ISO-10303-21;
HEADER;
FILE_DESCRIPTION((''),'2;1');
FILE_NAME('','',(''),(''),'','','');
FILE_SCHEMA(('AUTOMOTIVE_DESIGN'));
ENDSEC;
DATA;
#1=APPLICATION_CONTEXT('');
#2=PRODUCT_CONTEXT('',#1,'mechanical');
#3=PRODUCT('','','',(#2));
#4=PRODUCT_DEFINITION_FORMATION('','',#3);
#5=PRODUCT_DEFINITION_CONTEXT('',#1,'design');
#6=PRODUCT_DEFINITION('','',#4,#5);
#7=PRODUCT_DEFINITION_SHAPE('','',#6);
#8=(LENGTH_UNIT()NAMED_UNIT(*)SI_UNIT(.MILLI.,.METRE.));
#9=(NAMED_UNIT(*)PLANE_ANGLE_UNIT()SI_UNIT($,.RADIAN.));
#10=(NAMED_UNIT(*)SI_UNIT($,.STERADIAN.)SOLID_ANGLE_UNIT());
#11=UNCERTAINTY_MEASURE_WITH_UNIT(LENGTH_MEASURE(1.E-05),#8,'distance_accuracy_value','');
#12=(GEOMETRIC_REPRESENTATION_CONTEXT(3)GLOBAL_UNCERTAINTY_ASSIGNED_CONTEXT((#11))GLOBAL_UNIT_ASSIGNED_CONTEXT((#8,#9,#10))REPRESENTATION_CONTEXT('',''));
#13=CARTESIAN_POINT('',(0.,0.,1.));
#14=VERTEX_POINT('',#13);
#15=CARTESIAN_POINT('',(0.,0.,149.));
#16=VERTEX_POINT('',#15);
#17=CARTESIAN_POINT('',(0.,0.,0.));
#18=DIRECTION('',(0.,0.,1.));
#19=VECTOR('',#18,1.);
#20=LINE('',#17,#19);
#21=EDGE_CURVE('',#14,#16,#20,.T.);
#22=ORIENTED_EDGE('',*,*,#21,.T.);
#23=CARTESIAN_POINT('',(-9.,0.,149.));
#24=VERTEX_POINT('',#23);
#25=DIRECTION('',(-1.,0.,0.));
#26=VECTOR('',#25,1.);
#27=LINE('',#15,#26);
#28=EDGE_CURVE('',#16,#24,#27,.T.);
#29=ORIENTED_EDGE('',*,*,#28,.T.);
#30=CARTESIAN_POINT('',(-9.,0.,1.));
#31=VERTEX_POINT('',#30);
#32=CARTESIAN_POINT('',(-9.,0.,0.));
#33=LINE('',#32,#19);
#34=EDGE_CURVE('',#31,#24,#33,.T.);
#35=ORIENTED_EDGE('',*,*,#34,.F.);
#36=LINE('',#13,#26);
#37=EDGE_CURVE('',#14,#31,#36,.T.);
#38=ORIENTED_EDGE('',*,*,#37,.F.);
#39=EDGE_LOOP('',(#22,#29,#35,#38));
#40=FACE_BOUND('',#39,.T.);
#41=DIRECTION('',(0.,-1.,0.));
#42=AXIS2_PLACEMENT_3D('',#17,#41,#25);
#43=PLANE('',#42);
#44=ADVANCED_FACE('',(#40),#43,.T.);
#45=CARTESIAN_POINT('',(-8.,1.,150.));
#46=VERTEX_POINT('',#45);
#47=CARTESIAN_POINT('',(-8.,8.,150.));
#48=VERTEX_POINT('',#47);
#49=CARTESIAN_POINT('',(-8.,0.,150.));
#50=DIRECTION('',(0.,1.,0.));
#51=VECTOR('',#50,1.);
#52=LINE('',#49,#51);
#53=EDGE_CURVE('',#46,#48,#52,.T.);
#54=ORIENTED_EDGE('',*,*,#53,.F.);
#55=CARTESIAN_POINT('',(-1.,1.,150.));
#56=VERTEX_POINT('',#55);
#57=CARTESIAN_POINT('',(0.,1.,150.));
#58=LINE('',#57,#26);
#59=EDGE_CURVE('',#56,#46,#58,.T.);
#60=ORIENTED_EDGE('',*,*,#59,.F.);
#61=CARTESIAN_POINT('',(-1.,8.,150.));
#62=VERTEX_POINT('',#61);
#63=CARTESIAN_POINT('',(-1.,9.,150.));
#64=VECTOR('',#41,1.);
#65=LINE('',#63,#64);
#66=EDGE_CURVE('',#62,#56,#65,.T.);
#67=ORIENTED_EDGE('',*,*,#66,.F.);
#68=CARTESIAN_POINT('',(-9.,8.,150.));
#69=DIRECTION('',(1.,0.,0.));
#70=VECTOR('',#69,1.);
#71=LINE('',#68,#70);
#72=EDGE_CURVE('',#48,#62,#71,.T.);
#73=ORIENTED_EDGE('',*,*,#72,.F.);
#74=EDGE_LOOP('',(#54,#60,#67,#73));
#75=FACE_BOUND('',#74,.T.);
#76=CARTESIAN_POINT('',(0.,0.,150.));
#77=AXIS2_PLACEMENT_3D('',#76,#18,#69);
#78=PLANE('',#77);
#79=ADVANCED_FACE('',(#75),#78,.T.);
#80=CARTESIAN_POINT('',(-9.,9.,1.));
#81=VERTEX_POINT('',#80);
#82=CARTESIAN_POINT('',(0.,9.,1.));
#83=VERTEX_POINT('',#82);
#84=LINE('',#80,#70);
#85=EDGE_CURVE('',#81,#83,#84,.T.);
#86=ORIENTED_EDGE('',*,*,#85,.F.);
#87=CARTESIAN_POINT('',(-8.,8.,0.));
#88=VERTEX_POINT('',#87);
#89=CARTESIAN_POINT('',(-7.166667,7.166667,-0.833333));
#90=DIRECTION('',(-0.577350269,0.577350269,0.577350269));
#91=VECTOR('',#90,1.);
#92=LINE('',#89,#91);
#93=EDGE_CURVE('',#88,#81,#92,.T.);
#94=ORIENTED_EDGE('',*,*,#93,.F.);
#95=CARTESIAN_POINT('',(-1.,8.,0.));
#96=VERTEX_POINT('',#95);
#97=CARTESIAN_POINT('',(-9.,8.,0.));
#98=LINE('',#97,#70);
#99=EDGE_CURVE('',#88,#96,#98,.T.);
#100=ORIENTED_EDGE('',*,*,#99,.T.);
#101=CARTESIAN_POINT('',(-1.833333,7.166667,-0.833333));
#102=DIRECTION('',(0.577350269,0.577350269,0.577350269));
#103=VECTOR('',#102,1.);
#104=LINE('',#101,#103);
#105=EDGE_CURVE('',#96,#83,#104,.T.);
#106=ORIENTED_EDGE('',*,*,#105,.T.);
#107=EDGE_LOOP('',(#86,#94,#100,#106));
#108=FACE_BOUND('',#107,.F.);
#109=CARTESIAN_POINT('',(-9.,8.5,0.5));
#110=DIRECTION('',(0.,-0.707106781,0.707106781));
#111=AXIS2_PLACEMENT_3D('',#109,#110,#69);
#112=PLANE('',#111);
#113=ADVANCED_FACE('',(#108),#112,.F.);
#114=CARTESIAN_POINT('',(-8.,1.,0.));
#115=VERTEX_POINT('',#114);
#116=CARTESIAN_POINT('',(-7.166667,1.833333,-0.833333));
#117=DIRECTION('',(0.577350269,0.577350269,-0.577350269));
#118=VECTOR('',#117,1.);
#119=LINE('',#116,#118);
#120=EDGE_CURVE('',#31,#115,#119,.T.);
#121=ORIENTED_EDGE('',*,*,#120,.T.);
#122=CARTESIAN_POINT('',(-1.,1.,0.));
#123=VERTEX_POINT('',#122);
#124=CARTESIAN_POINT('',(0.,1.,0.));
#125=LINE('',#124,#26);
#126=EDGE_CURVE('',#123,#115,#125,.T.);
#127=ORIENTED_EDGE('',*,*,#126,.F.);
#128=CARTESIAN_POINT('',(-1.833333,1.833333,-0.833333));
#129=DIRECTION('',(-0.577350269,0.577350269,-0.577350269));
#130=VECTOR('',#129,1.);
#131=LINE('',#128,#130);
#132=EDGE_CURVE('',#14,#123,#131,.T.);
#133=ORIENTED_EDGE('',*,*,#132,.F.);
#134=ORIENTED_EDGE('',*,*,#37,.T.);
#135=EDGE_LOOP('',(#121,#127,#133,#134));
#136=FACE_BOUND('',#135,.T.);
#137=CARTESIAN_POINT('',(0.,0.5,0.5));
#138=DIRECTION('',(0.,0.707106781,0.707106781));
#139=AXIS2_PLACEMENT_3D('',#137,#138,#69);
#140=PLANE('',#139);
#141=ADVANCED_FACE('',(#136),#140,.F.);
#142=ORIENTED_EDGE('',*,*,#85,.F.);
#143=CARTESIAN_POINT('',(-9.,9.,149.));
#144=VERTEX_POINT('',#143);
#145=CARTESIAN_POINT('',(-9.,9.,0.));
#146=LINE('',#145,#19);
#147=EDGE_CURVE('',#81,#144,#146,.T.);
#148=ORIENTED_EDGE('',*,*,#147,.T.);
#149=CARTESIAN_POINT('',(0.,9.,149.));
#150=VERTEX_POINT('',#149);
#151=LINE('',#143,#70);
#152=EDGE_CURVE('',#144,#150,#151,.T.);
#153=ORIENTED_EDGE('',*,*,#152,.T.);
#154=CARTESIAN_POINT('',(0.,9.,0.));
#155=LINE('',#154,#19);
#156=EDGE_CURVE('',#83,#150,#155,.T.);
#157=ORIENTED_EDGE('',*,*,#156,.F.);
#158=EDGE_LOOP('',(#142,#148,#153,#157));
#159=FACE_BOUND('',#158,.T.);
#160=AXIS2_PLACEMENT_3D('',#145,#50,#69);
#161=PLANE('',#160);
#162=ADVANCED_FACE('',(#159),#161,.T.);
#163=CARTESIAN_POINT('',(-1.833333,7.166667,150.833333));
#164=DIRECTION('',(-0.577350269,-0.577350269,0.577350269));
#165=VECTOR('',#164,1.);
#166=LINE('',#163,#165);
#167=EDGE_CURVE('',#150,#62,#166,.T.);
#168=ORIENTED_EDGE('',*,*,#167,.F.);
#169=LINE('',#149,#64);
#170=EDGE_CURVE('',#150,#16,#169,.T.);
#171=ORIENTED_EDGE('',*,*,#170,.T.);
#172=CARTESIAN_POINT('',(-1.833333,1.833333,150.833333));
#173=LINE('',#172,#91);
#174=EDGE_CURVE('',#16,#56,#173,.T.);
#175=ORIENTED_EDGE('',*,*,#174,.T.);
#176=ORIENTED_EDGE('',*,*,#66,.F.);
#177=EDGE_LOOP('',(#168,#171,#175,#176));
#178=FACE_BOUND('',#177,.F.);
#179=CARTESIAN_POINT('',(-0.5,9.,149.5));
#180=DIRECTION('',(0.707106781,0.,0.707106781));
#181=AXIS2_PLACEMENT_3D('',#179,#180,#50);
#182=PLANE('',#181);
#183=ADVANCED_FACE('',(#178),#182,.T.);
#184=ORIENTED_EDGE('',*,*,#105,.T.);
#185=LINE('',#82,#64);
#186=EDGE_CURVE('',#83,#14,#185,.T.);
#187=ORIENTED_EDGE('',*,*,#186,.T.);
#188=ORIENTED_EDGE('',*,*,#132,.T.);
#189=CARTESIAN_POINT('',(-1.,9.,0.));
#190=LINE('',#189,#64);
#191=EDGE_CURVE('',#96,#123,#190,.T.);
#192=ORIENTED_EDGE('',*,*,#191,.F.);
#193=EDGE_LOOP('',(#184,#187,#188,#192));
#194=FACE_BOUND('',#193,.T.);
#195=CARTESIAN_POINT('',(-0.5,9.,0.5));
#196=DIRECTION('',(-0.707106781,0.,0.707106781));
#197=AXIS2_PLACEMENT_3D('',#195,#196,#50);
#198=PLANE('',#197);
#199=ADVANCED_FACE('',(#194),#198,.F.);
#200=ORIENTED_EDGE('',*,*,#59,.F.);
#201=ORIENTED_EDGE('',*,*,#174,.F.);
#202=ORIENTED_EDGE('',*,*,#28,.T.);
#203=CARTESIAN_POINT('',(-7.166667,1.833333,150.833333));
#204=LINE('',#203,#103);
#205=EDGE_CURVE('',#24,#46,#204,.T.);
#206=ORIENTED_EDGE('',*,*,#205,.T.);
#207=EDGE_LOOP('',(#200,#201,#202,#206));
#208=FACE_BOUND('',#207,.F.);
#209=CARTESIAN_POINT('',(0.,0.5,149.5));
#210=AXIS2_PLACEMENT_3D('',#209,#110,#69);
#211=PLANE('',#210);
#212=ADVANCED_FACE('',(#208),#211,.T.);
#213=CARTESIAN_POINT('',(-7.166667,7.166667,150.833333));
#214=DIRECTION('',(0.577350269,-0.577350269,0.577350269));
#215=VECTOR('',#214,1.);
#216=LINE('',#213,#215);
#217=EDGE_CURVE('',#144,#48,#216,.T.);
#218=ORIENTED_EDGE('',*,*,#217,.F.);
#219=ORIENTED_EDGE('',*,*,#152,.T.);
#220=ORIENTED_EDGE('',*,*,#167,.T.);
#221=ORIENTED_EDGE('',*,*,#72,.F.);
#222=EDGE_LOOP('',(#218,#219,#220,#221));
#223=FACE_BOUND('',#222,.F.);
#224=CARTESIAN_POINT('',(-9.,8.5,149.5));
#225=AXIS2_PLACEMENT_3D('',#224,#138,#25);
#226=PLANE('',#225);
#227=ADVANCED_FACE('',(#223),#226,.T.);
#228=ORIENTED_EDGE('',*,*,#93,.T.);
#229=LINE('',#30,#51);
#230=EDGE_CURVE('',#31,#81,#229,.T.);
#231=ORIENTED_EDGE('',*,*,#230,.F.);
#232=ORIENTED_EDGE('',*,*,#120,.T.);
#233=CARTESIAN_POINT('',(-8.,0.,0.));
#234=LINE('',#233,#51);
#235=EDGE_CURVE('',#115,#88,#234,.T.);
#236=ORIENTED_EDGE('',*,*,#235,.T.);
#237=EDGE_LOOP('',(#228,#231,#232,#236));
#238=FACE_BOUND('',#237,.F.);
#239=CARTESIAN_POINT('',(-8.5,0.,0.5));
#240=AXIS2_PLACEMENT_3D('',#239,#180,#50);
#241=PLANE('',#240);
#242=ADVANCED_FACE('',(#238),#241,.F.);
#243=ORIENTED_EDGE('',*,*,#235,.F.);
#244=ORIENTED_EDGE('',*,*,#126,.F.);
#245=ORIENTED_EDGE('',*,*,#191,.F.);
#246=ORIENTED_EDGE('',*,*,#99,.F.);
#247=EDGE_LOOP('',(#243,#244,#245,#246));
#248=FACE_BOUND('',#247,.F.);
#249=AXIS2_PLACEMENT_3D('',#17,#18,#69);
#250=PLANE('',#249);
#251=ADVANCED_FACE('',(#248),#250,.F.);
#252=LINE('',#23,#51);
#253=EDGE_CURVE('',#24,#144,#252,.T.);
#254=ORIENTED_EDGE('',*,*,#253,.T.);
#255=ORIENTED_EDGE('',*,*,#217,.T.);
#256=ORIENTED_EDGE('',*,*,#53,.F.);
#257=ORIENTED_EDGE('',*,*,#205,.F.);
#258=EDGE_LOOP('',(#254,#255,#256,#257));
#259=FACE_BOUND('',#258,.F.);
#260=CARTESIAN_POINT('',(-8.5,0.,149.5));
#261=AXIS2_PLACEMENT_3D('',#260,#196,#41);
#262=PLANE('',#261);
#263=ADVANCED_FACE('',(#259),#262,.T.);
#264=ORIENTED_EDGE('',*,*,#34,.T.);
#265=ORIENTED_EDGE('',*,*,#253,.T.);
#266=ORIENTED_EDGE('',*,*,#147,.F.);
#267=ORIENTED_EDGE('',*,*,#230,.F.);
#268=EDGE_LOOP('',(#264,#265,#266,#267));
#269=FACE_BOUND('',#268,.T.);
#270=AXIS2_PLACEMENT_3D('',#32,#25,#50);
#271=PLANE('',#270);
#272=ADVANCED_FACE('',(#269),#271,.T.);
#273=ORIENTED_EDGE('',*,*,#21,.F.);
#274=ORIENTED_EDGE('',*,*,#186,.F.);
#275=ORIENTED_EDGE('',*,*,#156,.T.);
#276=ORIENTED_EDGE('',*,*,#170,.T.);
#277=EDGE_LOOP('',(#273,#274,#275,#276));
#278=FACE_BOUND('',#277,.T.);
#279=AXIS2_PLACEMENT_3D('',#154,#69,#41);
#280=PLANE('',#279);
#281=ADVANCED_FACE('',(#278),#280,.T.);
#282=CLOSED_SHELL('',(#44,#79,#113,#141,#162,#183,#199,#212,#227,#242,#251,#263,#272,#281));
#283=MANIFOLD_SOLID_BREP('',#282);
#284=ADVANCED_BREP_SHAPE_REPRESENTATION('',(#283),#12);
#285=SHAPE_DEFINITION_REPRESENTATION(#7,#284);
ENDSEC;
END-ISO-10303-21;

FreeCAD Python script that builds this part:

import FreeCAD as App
import Part
import Sketcher

V = App.Vector


def edges_at(feature, points):
    """Names of the edges that pass closest to the given points."""
    edges = feature.Shape.Edges
    near = lambda p: min(range(len(edges)), key=lambda i: edges[i].distToShape(Part.Vertex(*p))[0])
    return sorted({f"Edge{near(p) + 1}" for p in points})

doc = App.newDocument("Part")
body = doc.addObject("PartDesign::Body", "Body")

sketch1 = body.newObject("Sketcher::SketchObject", "Sketch")
sketch1.AttachmentSupport = (doc.getObject("XY_Plane"), [""])
sketch1.MapMode = "FlatFace"
sketch1.addGeometry([
    Part.LineSegment(V(-9, 0, 0), V(0, 0, 0)),
    Part.LineSegment(V(0, 0, 0), V(0, 9, 0)),
    Part.LineSegment(V(0, 9, 0), V(-9, 9, 0)),
    Part.LineSegment(V(-9, 9, 0), V(-9, 0, 0)),
], False)
sketch1.addConstraint([
    Sketcher.Constraint("Coincident", 0, 2, 1, 1),
    Sketcher.Constraint("Coincident", 1, 2, 2, 1),
    Sketcher.Constraint("Coincident", 2, 2, 3, 1),
    Sketcher.Constraint("Coincident", 3, 2, 0, 1),
    Sketcher.Constraint("Horizontal", 0),
    Sketcher.Constraint("Vertical", 1),
    Sketcher.Constraint("Horizontal", 2),
    Sketcher.Constraint("Vertical", 3),
    Sketcher.Constraint("Coincident", 0, 2, -1, 1),
    Sketcher.Constraint("Equal", 2, 1),
    Sketcher.Constraint("DistanceX", 0, 1, 0, 2, 9.0),
])
pad1 = body.newObject("PartDesign::Pad", "Pad")
pad1.Profile = sketch1
pad1.Length = 150
doc.recompute()

chamfer = body.newObject("PartDesign::Chamfer", "Chamfer")
chamfer.Base = (pad1, edges_at(pad1, [
    (-4.5, 9, 150),
    (0, 4.5, 150),
    (-4.5, 0, 150),
    (-9, 4.5, 150),
]))
chamfer.Size = 1
doc.recompute()

chamfer2 = body.newObject("PartDesign::Chamfer", "Chamfer001")
chamfer2.Base = (chamfer, edges_at(chamfer, [
    (-4.5, 9, 0),
    (0, 4.5, 0),
    (-4.5, 0, 0),
    (-9, 4.5, 0),
]))
chamfer2.Size = 1

doc.recompute()
